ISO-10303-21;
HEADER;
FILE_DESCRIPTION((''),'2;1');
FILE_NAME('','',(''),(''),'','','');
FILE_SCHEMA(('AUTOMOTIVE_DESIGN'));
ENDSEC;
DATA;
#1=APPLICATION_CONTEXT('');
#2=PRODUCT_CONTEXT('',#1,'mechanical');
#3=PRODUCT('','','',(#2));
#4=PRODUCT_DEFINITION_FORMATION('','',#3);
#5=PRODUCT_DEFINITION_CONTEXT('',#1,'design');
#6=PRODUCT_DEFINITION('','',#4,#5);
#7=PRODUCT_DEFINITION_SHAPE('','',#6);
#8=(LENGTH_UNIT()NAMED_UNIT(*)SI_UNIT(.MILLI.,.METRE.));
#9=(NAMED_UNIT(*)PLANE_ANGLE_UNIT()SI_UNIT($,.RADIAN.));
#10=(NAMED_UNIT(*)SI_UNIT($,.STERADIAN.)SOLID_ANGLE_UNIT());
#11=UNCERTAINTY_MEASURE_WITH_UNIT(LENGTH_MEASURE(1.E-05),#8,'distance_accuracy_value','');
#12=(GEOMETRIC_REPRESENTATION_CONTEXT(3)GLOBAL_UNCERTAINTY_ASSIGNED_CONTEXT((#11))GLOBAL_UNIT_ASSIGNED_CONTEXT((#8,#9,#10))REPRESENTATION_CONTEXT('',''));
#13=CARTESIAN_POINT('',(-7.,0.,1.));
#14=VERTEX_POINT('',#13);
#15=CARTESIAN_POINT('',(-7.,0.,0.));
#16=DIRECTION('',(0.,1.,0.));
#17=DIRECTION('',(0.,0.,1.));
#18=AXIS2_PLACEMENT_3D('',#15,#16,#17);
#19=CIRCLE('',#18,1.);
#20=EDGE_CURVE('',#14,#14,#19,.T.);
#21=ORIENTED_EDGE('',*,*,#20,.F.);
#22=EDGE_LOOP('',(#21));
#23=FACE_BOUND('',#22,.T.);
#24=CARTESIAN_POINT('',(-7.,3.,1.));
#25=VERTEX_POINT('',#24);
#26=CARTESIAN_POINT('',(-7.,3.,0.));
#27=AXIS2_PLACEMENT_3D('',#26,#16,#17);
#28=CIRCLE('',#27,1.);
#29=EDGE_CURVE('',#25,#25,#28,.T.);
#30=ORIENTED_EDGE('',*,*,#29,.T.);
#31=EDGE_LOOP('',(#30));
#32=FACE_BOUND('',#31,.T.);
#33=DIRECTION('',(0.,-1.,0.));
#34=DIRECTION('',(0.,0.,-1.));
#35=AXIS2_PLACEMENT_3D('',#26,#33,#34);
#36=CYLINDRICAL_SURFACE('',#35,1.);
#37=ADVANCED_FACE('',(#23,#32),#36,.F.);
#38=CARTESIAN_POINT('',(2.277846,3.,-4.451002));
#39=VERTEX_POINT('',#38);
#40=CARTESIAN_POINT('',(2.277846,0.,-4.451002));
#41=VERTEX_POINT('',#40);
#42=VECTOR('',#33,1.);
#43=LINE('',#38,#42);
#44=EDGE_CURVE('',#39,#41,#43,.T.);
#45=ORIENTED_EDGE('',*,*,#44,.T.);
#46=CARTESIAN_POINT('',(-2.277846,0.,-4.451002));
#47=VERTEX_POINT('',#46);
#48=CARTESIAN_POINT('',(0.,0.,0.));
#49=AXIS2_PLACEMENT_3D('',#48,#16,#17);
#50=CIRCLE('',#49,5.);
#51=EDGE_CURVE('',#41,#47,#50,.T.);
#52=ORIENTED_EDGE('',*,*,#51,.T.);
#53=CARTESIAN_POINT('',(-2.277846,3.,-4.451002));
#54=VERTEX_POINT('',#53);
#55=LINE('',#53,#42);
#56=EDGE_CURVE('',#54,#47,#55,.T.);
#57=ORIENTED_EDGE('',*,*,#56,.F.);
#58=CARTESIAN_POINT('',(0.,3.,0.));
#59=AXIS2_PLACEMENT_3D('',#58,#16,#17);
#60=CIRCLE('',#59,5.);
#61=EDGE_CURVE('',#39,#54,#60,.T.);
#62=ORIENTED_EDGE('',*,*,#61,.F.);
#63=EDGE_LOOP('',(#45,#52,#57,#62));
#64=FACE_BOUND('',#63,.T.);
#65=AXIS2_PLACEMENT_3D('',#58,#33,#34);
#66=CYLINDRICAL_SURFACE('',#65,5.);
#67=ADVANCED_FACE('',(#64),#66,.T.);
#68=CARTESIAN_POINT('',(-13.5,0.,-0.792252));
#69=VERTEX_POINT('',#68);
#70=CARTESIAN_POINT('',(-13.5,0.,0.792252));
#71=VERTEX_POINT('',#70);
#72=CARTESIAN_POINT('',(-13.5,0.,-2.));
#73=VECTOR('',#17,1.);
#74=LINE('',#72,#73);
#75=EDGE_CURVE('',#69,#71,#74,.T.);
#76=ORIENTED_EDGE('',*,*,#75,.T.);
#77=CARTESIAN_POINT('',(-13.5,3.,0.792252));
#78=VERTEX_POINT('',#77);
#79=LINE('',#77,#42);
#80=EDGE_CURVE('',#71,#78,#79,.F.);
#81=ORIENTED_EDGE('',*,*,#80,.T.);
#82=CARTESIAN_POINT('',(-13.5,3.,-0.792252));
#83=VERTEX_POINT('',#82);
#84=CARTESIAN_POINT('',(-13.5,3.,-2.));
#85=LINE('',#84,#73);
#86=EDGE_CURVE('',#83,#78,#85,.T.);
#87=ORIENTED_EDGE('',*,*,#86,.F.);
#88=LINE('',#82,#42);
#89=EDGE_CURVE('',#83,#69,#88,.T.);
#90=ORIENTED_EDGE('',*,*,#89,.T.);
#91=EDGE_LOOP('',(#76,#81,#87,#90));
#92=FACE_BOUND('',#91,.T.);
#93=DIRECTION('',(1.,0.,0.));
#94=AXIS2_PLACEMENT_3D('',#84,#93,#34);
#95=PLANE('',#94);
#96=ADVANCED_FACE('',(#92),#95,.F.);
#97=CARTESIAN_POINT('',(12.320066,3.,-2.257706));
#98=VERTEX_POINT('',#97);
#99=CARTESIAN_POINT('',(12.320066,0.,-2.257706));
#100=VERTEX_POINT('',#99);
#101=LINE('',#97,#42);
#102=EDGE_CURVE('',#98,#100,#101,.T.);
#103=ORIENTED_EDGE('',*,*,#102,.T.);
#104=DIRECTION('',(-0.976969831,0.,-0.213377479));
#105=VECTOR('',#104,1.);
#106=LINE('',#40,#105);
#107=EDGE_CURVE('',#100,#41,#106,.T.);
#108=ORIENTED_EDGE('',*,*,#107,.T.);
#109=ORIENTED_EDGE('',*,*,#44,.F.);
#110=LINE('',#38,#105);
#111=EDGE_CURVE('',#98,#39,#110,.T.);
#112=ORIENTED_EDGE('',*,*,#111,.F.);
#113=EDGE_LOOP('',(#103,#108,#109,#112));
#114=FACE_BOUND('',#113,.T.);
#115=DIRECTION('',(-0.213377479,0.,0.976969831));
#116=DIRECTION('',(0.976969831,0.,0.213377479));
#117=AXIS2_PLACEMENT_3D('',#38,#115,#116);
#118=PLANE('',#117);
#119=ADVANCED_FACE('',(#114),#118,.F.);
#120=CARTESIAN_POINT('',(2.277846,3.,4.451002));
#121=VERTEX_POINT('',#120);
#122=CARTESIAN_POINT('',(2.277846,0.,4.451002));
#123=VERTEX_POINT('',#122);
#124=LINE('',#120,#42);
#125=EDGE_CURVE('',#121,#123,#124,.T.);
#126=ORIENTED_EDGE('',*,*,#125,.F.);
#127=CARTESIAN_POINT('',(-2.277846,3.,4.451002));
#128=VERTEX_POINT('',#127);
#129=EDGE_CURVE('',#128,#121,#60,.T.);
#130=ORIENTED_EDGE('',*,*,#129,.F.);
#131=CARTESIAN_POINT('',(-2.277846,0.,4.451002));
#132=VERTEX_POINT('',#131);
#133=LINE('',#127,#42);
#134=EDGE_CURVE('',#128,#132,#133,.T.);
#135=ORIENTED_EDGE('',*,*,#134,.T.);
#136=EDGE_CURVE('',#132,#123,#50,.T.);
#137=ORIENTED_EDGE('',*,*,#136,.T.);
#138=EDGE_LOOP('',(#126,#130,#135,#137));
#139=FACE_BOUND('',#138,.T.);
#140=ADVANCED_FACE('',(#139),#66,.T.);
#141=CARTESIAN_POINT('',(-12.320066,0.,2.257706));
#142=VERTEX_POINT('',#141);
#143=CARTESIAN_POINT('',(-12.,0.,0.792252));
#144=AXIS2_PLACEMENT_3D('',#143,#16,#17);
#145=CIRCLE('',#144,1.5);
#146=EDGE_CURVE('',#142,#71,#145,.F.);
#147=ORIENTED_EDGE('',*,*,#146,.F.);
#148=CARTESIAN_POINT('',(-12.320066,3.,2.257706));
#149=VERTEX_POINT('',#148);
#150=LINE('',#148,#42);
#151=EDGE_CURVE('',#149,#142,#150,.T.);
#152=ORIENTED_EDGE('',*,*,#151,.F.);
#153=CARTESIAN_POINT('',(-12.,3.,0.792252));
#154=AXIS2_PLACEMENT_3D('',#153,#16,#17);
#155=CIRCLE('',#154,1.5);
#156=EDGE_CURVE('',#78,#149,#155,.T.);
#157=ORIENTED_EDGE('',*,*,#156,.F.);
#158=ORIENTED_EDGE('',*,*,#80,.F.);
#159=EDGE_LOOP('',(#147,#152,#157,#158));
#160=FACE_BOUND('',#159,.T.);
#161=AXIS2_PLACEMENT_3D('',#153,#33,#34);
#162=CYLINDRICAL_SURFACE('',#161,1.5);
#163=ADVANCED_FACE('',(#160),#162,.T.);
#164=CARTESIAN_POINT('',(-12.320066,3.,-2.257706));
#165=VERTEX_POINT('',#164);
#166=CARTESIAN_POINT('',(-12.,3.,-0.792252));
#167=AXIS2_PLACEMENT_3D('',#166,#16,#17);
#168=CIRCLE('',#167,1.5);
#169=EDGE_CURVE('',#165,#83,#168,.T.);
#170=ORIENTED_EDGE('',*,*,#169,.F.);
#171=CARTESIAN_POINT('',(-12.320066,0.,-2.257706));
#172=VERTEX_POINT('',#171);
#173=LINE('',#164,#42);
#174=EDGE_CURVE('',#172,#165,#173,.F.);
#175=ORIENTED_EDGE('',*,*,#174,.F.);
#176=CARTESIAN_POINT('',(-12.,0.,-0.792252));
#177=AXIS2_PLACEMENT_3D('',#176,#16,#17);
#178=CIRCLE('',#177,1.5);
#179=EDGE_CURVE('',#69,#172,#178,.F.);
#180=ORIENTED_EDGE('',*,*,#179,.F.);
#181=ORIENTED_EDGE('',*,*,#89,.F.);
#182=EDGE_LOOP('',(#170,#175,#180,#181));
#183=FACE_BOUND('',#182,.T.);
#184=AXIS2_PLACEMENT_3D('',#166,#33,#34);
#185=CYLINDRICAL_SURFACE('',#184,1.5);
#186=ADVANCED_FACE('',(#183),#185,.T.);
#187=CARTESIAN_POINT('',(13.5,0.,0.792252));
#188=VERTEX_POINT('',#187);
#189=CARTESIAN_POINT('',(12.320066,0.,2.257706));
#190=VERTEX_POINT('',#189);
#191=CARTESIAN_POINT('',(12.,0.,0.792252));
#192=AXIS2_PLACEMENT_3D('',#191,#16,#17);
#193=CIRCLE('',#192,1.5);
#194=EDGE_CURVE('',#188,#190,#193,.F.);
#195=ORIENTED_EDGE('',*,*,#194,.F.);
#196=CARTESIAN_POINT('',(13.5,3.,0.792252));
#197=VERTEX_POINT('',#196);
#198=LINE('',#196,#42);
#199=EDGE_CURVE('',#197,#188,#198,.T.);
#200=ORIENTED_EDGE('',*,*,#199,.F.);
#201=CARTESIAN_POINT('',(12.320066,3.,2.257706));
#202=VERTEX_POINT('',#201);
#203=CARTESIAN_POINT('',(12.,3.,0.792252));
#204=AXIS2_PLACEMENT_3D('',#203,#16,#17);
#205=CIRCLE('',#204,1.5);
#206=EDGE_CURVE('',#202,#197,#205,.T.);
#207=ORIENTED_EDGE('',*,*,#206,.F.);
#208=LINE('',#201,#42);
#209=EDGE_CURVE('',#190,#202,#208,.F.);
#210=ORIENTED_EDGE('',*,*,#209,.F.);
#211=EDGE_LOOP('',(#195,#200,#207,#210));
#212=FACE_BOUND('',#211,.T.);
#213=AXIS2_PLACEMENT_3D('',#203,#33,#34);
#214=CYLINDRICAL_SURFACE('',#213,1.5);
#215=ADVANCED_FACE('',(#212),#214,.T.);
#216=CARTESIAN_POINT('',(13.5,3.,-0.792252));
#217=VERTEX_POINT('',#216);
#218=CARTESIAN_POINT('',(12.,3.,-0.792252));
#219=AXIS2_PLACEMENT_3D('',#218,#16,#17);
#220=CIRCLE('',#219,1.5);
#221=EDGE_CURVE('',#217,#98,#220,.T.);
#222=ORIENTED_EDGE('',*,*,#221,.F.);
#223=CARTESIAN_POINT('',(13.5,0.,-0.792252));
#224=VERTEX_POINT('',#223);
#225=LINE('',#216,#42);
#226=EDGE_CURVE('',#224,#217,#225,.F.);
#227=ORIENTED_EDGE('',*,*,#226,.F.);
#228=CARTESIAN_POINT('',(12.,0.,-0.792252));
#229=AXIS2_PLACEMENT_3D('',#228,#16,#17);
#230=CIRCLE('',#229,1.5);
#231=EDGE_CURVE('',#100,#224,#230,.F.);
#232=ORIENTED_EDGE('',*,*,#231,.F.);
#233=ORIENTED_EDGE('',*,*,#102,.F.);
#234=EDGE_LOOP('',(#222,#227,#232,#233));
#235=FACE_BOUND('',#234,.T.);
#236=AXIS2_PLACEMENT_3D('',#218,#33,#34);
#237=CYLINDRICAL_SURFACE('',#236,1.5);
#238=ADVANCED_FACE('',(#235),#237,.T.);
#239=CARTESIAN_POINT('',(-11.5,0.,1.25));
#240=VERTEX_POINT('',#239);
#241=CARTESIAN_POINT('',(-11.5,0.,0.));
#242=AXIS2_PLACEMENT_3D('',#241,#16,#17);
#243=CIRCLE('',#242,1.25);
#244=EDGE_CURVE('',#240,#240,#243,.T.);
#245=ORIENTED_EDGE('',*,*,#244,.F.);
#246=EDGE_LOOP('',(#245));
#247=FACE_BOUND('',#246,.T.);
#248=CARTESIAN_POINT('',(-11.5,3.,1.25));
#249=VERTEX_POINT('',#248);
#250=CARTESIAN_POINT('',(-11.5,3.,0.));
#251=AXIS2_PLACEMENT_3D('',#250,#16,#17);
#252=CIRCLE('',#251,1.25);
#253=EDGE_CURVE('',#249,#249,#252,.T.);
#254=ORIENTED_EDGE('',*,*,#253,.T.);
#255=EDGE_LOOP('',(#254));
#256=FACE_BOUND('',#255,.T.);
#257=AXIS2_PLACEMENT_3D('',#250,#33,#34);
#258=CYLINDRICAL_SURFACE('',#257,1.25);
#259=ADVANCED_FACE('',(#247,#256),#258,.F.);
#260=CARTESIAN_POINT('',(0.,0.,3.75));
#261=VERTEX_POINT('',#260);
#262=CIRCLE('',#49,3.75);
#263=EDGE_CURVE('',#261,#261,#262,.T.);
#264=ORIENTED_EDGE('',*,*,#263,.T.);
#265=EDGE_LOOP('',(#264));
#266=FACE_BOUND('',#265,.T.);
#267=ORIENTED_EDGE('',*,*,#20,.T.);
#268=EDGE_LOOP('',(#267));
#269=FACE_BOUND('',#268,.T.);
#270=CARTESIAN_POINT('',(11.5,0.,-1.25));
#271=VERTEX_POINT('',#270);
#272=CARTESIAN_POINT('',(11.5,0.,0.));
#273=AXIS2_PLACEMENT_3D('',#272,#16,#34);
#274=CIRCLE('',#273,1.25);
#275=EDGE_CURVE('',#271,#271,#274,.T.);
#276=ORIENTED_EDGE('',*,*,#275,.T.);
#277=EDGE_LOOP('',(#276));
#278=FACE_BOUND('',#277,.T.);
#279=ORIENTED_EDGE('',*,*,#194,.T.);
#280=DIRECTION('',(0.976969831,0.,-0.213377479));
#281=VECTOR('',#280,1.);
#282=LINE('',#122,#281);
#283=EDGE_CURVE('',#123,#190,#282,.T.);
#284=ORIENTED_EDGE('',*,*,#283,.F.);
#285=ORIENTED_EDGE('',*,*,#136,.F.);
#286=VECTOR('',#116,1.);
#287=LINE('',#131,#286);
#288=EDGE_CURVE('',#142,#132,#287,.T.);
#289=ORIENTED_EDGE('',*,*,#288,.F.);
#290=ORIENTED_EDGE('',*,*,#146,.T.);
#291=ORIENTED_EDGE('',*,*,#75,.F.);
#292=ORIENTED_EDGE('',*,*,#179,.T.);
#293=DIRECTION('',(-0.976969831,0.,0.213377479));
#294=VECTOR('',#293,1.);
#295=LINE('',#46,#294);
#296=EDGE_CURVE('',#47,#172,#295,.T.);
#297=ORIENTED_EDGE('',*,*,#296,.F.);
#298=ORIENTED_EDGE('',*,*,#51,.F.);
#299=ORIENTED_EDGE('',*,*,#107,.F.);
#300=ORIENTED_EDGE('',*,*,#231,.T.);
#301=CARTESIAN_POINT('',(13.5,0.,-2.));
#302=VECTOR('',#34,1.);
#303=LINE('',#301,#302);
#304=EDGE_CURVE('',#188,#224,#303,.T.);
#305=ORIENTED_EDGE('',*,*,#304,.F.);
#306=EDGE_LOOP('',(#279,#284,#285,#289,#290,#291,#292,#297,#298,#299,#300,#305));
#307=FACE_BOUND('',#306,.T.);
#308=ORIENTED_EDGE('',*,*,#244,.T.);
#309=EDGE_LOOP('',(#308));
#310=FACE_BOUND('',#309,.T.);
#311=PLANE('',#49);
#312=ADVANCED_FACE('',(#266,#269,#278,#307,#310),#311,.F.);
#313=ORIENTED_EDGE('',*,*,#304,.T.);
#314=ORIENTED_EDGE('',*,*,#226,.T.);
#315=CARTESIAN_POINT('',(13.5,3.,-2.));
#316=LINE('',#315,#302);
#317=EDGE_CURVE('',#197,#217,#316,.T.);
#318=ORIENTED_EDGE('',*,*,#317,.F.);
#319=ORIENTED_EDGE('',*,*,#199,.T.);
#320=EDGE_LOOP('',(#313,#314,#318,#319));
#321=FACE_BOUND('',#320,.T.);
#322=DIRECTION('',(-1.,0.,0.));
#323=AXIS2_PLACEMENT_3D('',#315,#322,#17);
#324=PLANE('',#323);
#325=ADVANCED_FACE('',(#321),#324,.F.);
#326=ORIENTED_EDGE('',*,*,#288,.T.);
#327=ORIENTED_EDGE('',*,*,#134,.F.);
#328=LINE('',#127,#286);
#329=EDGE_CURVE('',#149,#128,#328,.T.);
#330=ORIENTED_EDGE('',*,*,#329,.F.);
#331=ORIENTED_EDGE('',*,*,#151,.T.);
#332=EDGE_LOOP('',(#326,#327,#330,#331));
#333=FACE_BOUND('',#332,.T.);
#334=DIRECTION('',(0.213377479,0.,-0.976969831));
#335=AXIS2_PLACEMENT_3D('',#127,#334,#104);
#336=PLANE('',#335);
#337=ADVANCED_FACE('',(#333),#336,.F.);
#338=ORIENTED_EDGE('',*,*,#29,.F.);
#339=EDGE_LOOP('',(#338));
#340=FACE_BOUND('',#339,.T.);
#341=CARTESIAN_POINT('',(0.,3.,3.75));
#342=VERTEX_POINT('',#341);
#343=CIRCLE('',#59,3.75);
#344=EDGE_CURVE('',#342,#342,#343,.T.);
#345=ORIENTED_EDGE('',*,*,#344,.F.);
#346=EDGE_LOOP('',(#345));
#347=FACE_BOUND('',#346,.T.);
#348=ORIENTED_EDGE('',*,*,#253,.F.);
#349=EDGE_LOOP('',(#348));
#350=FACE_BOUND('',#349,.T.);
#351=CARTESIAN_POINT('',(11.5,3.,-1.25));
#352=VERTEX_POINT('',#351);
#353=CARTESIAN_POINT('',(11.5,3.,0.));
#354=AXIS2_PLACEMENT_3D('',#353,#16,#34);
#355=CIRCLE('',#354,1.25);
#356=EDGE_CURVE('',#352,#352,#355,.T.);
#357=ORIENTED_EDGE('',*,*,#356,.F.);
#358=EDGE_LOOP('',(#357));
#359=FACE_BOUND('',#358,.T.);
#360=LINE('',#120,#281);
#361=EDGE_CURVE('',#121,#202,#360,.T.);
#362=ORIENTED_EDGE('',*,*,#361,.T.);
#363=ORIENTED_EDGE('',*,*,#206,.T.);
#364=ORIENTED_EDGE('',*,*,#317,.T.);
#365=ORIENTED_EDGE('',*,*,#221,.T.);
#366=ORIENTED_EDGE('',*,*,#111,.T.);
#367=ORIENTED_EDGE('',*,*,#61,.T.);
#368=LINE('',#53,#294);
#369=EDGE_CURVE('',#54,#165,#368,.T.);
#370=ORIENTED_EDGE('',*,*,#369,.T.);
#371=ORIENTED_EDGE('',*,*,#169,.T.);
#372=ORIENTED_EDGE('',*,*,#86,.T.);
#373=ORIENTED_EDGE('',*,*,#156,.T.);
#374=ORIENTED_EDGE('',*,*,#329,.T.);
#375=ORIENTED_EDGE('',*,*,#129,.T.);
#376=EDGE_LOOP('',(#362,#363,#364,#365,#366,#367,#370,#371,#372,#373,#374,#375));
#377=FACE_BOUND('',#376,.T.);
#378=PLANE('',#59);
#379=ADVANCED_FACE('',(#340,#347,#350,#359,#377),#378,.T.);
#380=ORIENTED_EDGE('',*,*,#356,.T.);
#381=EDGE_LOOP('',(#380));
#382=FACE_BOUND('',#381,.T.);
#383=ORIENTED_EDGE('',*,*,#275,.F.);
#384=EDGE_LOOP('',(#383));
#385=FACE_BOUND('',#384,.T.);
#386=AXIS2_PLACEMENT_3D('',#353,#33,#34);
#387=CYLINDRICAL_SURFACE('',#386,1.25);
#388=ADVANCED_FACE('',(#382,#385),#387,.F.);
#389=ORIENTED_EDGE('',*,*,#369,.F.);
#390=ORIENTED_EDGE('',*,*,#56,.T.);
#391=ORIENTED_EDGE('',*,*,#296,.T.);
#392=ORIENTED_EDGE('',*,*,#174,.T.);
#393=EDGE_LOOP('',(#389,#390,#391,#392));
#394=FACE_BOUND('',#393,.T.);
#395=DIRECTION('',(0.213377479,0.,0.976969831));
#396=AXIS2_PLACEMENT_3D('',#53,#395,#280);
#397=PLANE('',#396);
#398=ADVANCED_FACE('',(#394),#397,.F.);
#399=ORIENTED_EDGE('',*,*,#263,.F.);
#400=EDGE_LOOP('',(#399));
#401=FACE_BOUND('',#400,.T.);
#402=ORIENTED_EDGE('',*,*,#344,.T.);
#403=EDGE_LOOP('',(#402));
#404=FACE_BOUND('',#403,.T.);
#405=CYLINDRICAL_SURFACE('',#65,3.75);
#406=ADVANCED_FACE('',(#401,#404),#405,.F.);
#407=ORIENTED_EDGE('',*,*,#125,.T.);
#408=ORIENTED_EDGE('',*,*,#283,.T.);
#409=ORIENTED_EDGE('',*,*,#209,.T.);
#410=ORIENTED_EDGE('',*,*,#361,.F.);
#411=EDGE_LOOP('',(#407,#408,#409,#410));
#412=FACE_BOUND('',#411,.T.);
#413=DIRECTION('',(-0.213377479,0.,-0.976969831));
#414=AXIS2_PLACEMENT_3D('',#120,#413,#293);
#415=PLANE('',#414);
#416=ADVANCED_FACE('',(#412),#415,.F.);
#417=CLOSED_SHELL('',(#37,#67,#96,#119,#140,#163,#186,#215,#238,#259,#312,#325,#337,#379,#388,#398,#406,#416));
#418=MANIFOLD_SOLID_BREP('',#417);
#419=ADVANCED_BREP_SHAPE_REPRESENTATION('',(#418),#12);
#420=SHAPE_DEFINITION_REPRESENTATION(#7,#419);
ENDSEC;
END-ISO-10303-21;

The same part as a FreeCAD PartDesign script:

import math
import FreeCAD as App
import Part
import Sketcher
from FreeCAD import Vector


def edges_at(feature, points):
    """Names of the edges that pass closest to the given points."""
    edges = feature.Shape.Edges
    near = lambda p: min(range(len(edges)), key=lambda i: edges[i].distToShape(Part.Vertex(*p))[0])
    return sorted({f"Edge{near(p) + 1}" for p in points})

doc = App.newDocument("Part")
body = doc.addObject("PartDesign::Body", "Body")

# Sketch on XZ plane
sketch1 = doc.addObject("Sketcher::SketchObject", "Sketch")
body.addObject(sketch1)
sketch1.AttachmentSupport = (doc.XZ_Plane, [""])
sketch1.MapMode = "FlatFace"
sketch1.addGeometry(Part.LineSegment(Vector(-2.3, -4.5, 0), Vector(-13.5, -2, 0)), False)
sketch1.addGeometry(Part.LineSegment(Vector(-13.5, -2, 0), Vector(-13.5, 2, 0)), False)
sketch1.addGeometry(Part.LineSegment(Vector(-13.5, 2, 0), Vector(-2.3, 4.5, 0)), False)
sketch1.addGeometry(Part.ArcOfCircle(Part.Circle(Vector(0, 0, 0), Vector(0, 0, 1), 5), math.radians(63), math.radians(117)), False)
sketch1.addGeometry(Part.LineSegment(Vector(2.3, 4.5, 0), Vector(13.5, 2, 0)), False)
sketch1.addGeometry(Part.LineSegment(Vector(13.5, 2, 0), Vector(13.5, -2, 0)), False)
sketch1.addGeometry(Part.LineSegment(Vector(13.5, -2, 0), Vector(2.3, -4.5, 0)), False)
sketch1.addGeometry(Part.ArcOfCircle(Part.Circle(Vector(0, 0, 0), Vector(0, 0, 1), 5), math.radians(-117), math.radians(-63)), False)
sketch1.addGeometry(Part.Circle(Vector(-11.5, 0, 0), Vector(0, 0, 1), 1.2), False)
sketch1.addGeometry(Part.Circle(Vector(-7, 0, 0), Vector(0, 0, 1), 1), False)
sketch1.addGeometry(Part.Circle(Vector(0, 0, 0), Vector(0, 0, 1), 3.8), False)
sketch1.addGeometry(Part.Circle(Vector(11.5, 0, 0), Vector(0, 0, 1), 1.2), False)
sketch1.addConstraint(Sketcher.Constraint("Coincident", 0, 2, 1, 1))
sketch1.addConstraint(Sketcher.Constraint("Coincident", 1, 2, 2, 1))
sketch1.addConstraint(Sketcher.Constraint("Coincident", 2, 2, 3, 2))
sketch1.addConstraint(Sketcher.Constraint("Coincident", 3, 1, 4, 1))
sketch1.addConstraint(Sketcher.Constraint("Coincident", 4, 2, 5, 1))
sketch1.addConstraint(Sketcher.Constraint("Coincident", 5, 2, 6, 1))
sketch1.addConstraint(Sketcher.Constraint("Coincident", 6, 2, 7, 2))
sketch1.addConstraint(Sketcher.Constraint("Coincident", 7, 1, 0, 1))
sketch1.addConstraint(Sketcher.Constraint("Vertical", 1))
sketch1.addConstraint(Sketcher.Constraint("Vertical", 5))
sketch1.addConstraint(Sketcher.Constraint("Coincident", 3, 3, -1, 1))
sketch1.addConstraint(Sketcher.Constraint("Coincident", 7, 3, -1, 1))
sketch1.addConstraint(Sketcher.Constraint("Coincident", 10, 3, -1, 1))
sketch1.addConstraint(Sketcher.Constraint("Equal", 3, 7))
sketch1.addConstraint(Sketcher.Constraint("Equal", 8, 11))
sketch1.addConstraint(Sketcher.Constraint("Symmetric", 8, 3, 11, 3, -1, 1))
sketch1.addConstraint(Sketcher.Constraint("Symmetric", 0, 2, 4, 2, -1, 1))
sketch1.addConstraint(Sketcher.Constraint("PointOnObject", 8, 3, -1))
sketch1.addConstraint(Sketcher.Constraint("PointOnObject", 9, 3, -1))
sketch1.addConstraint(Sketcher.Constraint("Parallel", 0, 4))
sketch1.addConstraint(Sketcher.Constraint("Parallel", 2, 6))
sketch1.addConstraint(Sketcher.Constraint("Horizontal", 2, 2, 3, 1))
sketch1.addConstraint(Sketcher.Constraint("Horizontal", 1, 2, 4, 2))
sketch1.addConstraint(Sketcher.Constraint("Horizontal", 0, 2, 5, 2))
sketch1.addConstraint(Sketcher.Constraint("Diameter", 9, 2.0))
sketch1.addConstraint(Sketcher.Constraint("Radius", 3, 5.0))
sketch1.addConstraint(Sketcher.Constraint("Diameter", 8, 2.5))
sketch1.addConstraint(Sketcher.Constraint("Diameter", 10, 7.5))
sketch1.addConstraint(Sketcher.Constraint("DistanceY", 1, 1, 1, 2, 4.0))
sketch1.addConstraint(Sketcher.Constraint("DistanceX", 9, 3, -1, 1, 7.0))
sketch1.addConstraint(Sketcher.Constraint("DistanceX", 8, 3, 11, 3, 23.0))
sketch1.addConstraint(Sketcher.Constraint("DistanceX", 0, 2, 8, 3, 2.0))
sketch1.addConstraint(Sketcher.Constraint("DistanceY", -1, 1, 2, 2, 4.451002))
pad1 = doc.addObject("PartDesign::Pad", "Pad")
body.addObject(pad1)
pad1.Profile = sketch1
pad1.Length = 3
pad1.Reversed = True
doc.recompute()

fillet = doc.addObject("PartDesign::Fillet", "Fillet")
body.addObject(fillet)
fillet.Base = (pad1, edges_at(pad1, [
    (-13.5, 1.5, 2),
    (-13.5, 1.5, -2),
    (13.5, 1.5, -2),
    (13.5, 1.5, 2),
]))
fillet.Radius = 1.5

doc.recompute()
